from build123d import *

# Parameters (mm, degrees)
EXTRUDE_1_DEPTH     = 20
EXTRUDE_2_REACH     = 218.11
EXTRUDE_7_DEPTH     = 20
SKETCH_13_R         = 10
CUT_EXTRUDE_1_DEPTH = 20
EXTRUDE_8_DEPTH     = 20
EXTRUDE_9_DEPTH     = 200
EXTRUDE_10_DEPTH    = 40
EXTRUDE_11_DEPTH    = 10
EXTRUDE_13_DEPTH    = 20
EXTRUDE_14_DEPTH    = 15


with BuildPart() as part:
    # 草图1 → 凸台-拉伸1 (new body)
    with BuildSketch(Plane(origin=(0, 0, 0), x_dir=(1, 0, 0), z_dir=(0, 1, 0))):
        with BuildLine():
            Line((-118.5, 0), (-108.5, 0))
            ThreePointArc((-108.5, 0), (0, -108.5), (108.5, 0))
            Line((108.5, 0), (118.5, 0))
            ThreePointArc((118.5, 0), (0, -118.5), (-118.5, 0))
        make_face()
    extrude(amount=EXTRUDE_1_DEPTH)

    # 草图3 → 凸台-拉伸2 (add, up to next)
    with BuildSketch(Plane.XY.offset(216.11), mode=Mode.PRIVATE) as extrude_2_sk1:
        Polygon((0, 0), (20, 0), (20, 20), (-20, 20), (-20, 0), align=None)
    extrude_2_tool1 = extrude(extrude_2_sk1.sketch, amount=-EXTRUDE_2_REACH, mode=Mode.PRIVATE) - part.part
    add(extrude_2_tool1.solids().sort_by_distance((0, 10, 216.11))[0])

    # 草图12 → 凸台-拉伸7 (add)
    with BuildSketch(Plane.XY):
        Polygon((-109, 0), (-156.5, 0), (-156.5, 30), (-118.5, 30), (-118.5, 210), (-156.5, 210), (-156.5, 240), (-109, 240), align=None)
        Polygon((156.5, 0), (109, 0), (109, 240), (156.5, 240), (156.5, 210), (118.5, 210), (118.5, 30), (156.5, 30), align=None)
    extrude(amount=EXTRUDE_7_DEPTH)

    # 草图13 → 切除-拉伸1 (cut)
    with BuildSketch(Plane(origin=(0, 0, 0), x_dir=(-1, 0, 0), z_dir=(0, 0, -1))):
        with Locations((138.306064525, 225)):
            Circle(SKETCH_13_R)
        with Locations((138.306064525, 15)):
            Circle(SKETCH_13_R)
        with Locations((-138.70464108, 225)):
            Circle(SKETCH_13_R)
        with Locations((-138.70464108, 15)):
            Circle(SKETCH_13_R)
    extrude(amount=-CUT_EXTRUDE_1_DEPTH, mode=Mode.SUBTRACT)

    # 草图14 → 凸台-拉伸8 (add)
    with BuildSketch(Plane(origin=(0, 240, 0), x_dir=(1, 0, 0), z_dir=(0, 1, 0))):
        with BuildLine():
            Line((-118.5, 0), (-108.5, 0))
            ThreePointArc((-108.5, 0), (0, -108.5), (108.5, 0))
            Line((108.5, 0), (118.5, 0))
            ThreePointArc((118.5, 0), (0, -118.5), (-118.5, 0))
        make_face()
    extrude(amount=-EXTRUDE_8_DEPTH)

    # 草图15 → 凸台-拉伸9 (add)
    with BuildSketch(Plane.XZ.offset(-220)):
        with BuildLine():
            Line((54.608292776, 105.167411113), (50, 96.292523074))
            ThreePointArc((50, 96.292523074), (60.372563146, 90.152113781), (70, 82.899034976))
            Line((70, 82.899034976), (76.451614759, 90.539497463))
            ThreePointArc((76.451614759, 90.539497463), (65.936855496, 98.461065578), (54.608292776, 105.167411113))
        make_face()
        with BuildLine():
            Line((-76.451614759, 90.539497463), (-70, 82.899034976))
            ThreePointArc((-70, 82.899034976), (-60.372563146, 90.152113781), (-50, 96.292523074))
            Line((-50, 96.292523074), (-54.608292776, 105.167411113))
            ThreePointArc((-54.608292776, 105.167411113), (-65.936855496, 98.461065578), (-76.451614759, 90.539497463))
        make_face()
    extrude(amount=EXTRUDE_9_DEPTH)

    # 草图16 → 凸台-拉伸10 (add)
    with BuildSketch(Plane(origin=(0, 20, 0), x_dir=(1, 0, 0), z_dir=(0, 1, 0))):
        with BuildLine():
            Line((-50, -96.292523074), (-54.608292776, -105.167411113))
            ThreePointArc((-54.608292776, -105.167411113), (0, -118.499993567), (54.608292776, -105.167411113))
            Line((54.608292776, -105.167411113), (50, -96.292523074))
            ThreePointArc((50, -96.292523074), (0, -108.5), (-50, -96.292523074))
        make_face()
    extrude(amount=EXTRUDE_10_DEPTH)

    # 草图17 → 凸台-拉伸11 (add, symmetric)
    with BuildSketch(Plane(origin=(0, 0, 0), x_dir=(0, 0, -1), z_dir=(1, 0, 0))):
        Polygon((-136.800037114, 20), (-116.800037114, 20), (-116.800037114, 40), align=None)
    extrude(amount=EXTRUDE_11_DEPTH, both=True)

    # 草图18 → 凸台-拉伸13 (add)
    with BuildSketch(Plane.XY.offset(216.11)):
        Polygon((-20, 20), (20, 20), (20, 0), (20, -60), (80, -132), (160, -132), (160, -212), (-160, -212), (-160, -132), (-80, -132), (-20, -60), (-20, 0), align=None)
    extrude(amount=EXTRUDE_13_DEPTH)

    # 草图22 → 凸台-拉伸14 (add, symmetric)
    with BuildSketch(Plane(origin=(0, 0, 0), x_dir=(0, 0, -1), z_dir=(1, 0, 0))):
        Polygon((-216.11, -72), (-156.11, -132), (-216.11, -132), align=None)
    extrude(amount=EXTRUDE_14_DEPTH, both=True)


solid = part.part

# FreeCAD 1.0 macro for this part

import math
import FreeCAD as App
import Part
import Sketcher
from FreeCAD import Vector
Q = App.Units.Quantity

doc = App.newDocument("Part")
body = doc.addObject("PartDesign::Body", "Body")

sketch1 = body.newObject("Sketcher::SketchObject", "Sketch")
sketch1.AttachmentSupport = (doc.getObject("XZ_Plane"), [""])
sketch1.MapMode = "FlatFace"
sketch1.addGeometry(Part.LineSegment(Vector(-108.5, 0, 0), Vector(-118.5, 0, 0)), False)
sketch1.addGeometry(Part.ArcOfCircle(Part.Circle(Vector(0, 0, 0), Vector(0, 0, 1), 118.5), math.radians(0), math.radians(180)), False)
sketch1.addGeometry(Part.LineSegment(Vector(118.5, 0, 0), Vector(108.5, 0, 0)), False)
sketch1.addGeometry(Part.ArcOfCircle(Part.Circle(Vector(0, 0, 0), Vector(0, 0, 1), 108.5), math.radians(0), math.radians(180)), False)
sketch1.addConstraint(Sketcher.Constraint("Coincident", 0, 2, 1, 2))
sketch1.addConstraint(Sketcher.Constraint("Coincident", 1, 1, 2, 1))
sketch1.addConstraint(Sketcher.Constraint("Coincident", 2, 2, 3, 1))
sketch1.addConstraint(Sketcher.Constraint("Coincident", 3, 2, 0, 1))
sketch1.addConstraint(Sketcher.Constraint("Horizontal", 0))
sketch1.addConstraint(Sketcher.Constraint("Horizontal", 2))
sketch1.addConstraint(Sketcher.Constraint("Coincident", 1, 3, -1, 1))
sketch1.addConstraint(Sketcher.Constraint("Coincident", 3, 3, -1, 1))
sketch1.addConstraint(Sketcher.Constraint("PointOnObject", 0, 2, -1))
sketch1.addConstraint(Sketcher.Constraint("PointOnObject", 1, 1, -1))
sketch1.addConstraint(Sketcher.Constraint("Radius", 1, Q("118.5 mm")))
sketch1.addConstraint(Sketcher.Constraint("Radius", 3, Q("108.5 mm")))
pad1 = body.newObject("PartDesign::Pad", "Pad")
pad1.Profile = sketch1
pad1.Length = 20
pad1.Reversed = True

sketch2 = body.newObject("Sketcher::SketchObject", "Sketch001")
sketch2.AttachmentSupport = (doc.getObject("XY_Plane"), [""])
sketch2.MapMode = "FlatFace"
sketch2.AttachmentOffset = App.Placement(Vector(0, 0, 216.11), App.Rotation())
sketch2.addGeometry(Part.LineSegment(Vector(20, 0, 0), Vector(20, 20, 0)), False)
sketch2.addGeometry(Part.LineSegment(Vector(20, 20, 0), Vector(-20, 20, 0)), False)
sketch2.addGeometry(Part.LineSegment(Vector(-20, 20, 0), Vector(-20, 0, 0)), False)
sketch2.addGeometry(Part.LineSegment(Vector(-20, 0, 0), Vector(20, 0, 0)), False)
sketch2.addConstraint(Sketcher.Constraint("Coincident", 0, 2, 1, 1))
sketch2.addConstraint(Sketcher.Constraint("Coincident", 1, 2, 2, 1))
sketch2.addConstraint(Sketcher.Constraint("Coincident", 2, 2, 3, 1))
sketch2.addConstraint(Sketcher.Constraint("Coincident", 3, 2, 0, 1))
sketch2.addConstraint(Sketcher.Constraint("Vertical", 0))
sketch2.addConstraint(Sketcher.Constraint("Horizontal", 1))
sketch2.addConstraint(Sketcher.Constraint("Vertical", 2))
sketch2.addConstraint(Sketcher.Constraint("Horizontal", 3))
sketch2.addConstraint(Sketcher.Constraint("Symmetric", 2, 2, 3, 2, -1, 1))
sketch2.addConstraint(Sketcher.Constraint("DistanceX", 1, 2, 1, 1, Q("40 mm")))
sketch2.addConstraint(Sketcher.Constraint("DistanceY", 0, 1, 0, 2, Q("20 mm")))
pad2 = body.newObject("PartDesign::Pad", "Pad001")
pad2.Profile = sketch2
pad2.Type = "UpToFirst"
pad2.Reversed = True

sketch3 = body.newObject("Sketcher::SketchObject", "Sketch002")
sketch3.AttachmentSupport = (doc.getObject("XY_Plane"), [""])
sketch3.MapMode = "FlatFace"
sketch3.addGeometry(Part.LineSegment(Vector(-156.5, 0, 0), Vector(-109, 0, 0)), False)
sketch3.addGeometry(Part.LineSegment(Vector(-109, 0, 0), Vector(-109, 240, 0)), False)
sketch3.addGeometry(Part.LineSegment(Vector(-109, 240, 0), Vector(-156.5, 240, 0)), False)
sketch3.addGeometry(Part.LineSegment(Vector(-156.5, 240, 0), Vector(-156.5, 210, 0)), False)
sketch3.addGeometry(Part.LineSegment(Vector(-156.5, 210, 0), Vector(-118.5, 210, 0)), False)
sketch3.addGeometry(Part.LineSegment(Vector(-118.5, 210, 0), Vector(-118.5, 30, 0)), False)
sketch3.addGeometry(Part.LineSegment(Vector(-118.5, 30, 0), Vector(-156.5, 30, 0)), False)
sketch3.addGeometry(Part.LineSegment(Vector(-156.5, 30, 0), Vector(-156.5, 0, 0)), False)
sketch3.addGeometry(Part.LineSegment(Vector(109, 0, 0), Vector(156.5, 0, 0)), False)
sketch3.addGeometry(Part.LineSegment(Vector(156.5, 0, 0), Vector(156.5, 30, 0)), False)
sketch3.addGeometry(Part.LineSegment(Vector(156.5, 30, 0), Vector(118.5, 30, 0)), False)
sketch3.addGeometry(Part.LineSegment(Vector(118.5, 30, 0), Vector(118.5, 210, 0)), False)
sketch3.addGeometry(Part.LineSegment(Vector(118.5, 210, 0), Vector(156.5, 210, 0)), False)
sketch3.addGeometry(Part.LineSegment(Vector(156.5, 210, 0), Vector(156.5, 240, 0)), False)
sketch3.addGeometry(Part.LineSegment(Vector(156.5, 240, 0), Vector(109, 240, 0)), False)
sketch3.addGeometry(Part.LineSegment(Vector(109, 240, 0), Vector(109, 0, 0)), False)
sketch3.addConstraint(Sketcher.Constraint("Coincident", 0, 2, 1, 1))
sketch3.addConstraint(Sketcher.Constraint("Coincident", 1, 2, 2, 1))
sketch3.addConstraint(Sketcher.Constraint("Coincident", 2, 2, 3, 1))
sketch3.addConstraint(Sketcher.Constraint("Coincident", 3, 2, 4, 1))
sketch3.addConstraint(Sketcher.Constraint("Coincident", 4, 2, 5, 1))
sketch3.addConstraint(Sketcher.Constraint("Coincident", 5, 2, 6, 1))
sketch3.addConstraint(Sketcher.Constraint("Coincident", 6, 2, 7, 1))
sketch3.addConstraint(Sketcher.Constraint("Coincident", 7, 2, 0, 1))
sketch3.addConstraint(Sketcher.Constraint("Coincident", 8, 2, 9, 1))
sketch3.addConstraint(Sketcher.Constraint("Coincident", 9, 2, 10, 1))
sketch3.addConstraint(Sketcher.Constraint("Coincident", 10, 2, 11, 1))
sketch3.addConstraint(Sketcher.Constraint("Coincident", 11, 2, 12, 1))
sketch3.addConstraint(Sketcher.Constraint("Coincident", 12, 2, 13, 1))
sketch3.addConstraint(Sketcher.Constraint("Coincident", 13, 2, 14, 1))
sketch3.addConstraint(Sketcher.Constraint("Coincident", 14, 2, 15, 1))
sketch3.addConstraint(Sketcher.Constraint("Coincident", 15, 2, 8, 1))
sketch3.addConstraint(Sketcher.Constraint("Horizontal", 0))
sketch3.addConstraint(Sketcher.Constraint("Vertical", 1))
sketch3.addConstraint(Sketcher.Constraint("Horizontal", 2))
sketch3.addConstraint(Sketcher.Constraint("Vertical", 3))
sketch3.addConstraint(Sketcher.Constraint("Horizontal", 4))
sketch3.addConstraint(Sketcher.Constraint("Vertical", 5))
sketch3.addConstraint(Sketcher.Constraint("Horizontal", 6))
sketch3.addConstraint(Sketcher.Constraint("Vertical", 7))
sketch3.addConstraint(Sketcher.Constraint("Horizontal", 8))
sketch3.addConstraint(Sketcher.Constraint("Vertical", 9))
sketch3.addConstraint(Sketcher.Constraint("Horizontal", 10))
sketch3.addConstraint(Sketcher.Constraint("Vertical", 11))
sketch3.addConstraint(Sketcher.Constraint("Horizontal", 12))
sketch3.addConstraint(Sketcher.Constraint("Vertical", 13))
sketch3.addConstraint(Sketcher.Constraint("Horizontal", 14))
sketch3.addConstraint(Sketcher.Constraint("Vertical", 15))
sketch3.addConstraint(Sketcher.Constraint("Symmetric", 7, 2, 8, 2, -1, 1))
sketch3.addConstraint(Sketcher.Constraint("Symmetric", 5, 2, 10, 2, -2))
sketch3.addConstraint(Sketcher.Constraint("Symmetric", 3, 2, 12, 2, -2))
sketch3.addConstraint(Sketcher.Constraint("Symmetric", 1, 2, 14, 2, -2))
sketch3.addConstraint(Sketcher.Constraint("PointOnObject", 0, 2, -1))
sketch3.addConstraint(Sketcher.Constraint("Vertical", 3, 2, 6, 2))
sketch3.addConstraint(Sketcher.Constraint("Equal", 3, 7))
sketch3.addConstraint(Sketcher.Constraint("DistanceX", 4, 1, 4, 2, Q("38 mm")))
sketch3.addConstraint(Sketcher.Constraint("DistanceY", 1, 1, 1, 2, Q("240 mm")))
sketch3.addConstraint(Sketcher.Constraint("DistanceY", 3, 2, 3, 1, Q("30 mm")))
sketch3.addConstraint(Sketcher.Constraint("DistanceX", 0, 1, 0, 2, Q("47.5 mm")))
sketch3.addConstraint(Sketcher.Constraint("DistanceX", 0, 2, -1, 1, Q("109 mm")))
pad3 = body.newObject("PartDesign::Pad", "Pad002")
pad3.Profile = sketch3
pad3.Length = 20

sketch4 = body.newObject("Sketcher::SketchObject", "Sketch003")
sketch4.AttachmentSupport = (doc.getObject("XY_Plane"), [""])
sketch4.MapMode = "FlatFace"
sketch4.addGeometry(Part.Circle(Vector(-138.306065, 225, 0), Vector(0, 0, 1), 10), False)
sketch4.addGeometry(Part.Circle(Vector(-138.306065, 15, 0), Vector(0, 0, 1), 10), False)
sketch4.addGeometry(Part.Circle(Vector(138.704641, 225, 0), Vector(0, 0, 1), 10), False)
sketch4.addGeometry(Part.Circle(Vector(138.704641, 15, 0), Vector(0, 0, 1), 10), False)
sketch4.addConstraint(Sketcher.Constraint("Equal", 0, 1))
sketch4.addConstraint(Sketcher.Constraint("Equal", 1, 2))
sketch4.addConstraint(Sketcher.Constraint("Equal", 2, 3))
sketch4.addConstraint(Sketcher.Constraint("Horizontal", 0, 3, 2, 3))
sketch4.addConstraint(Sketcher.Constraint("Horizontal", 1, 3, 3, 3))
sketch4.addConstraint(Sketcher.Constraint("Vertical", 0, 3, 1, 3))
sketch4.addConstraint(Sketcher.Constraint("Vertical", 2, 3, 3, 3))
sketch4.addConstraint(Sketcher.Constraint("Diameter", 0, Q("20 mm")))
sketch4.addConstraint(Sketcher.Constraint("DistanceY", -1, 1, 0, 3, Q("225 mm")))
sketch4.addConstraint(Sketcher.Constraint("DistanceY", -1, 1, 1, 3, Q("15 mm")))
sketch4.addConstraint(Sketcher.Constraint("DistanceX", -1, 1, 2, 3, Q("138.704641 mm")))
sketch4.addConstraint(Sketcher.Constraint("DistanceX", 0, 3, -1, 1, Q("138.306065 mm")))
pocket1 = body.newObject("PartDesign::Pocket", "Pocket")
pocket1.Profile = sketch4
pocket1.Length = 20
pocket1.Reversed = True

sketch5 = body.newObject("Sketcher::SketchObject", "Sketch004")
sketch5.AttachmentSupport = (doc.getObject("XZ_Plane"), [""])
sketch5.MapMode = "FlatFace"
sketch5.AttachmentOffset = App.Placement(Vector(0, 0, -240), App.Rotation())
sketch5.addGeometry(Part.LineSegment(Vector(-108.5, 0, 0), Vector(-118.5, 0, 0)), False)
sketch5.addGeometry(Part.ArcOfCircle(Part.Circle(Vector(0, 0, 0), Vector(0, 0, 1), 118.5), math.radians(0), math.radians(180)), False)
sketch5.addGeometry(Part.LineSegment(Vector(118.5, 0, 0), Vector(108.5, 0, 0)), False)
sketch5.addGeometry(Part.ArcOfCircle(Part.Circle(Vector(0, 0, 0), Vector(0, 0, 1), 108.5), math.radians(0), math.radians(180)), False)
sketch5.addConstraint(Sketcher.Constraint("Coincident", 0, 2, 1, 2))
sketch5.addConstraint(Sketcher.Constraint("Coincident", 1, 1, 2, 1))
sketch5.addConstraint(Sketcher.Constraint("Coincident", 2, 2, 3, 1))
sketch5.addConstraint(Sketcher.Constraint("Coincident", 3, 2, 0, 1))
sketch5.addConstraint(Sketcher.Constraint("Horizontal", 0))
sketch5.addConstraint(Sketcher.Constraint("Horizontal", 2))
sketch5.addConstraint(Sketcher.Constraint("Coincident", 1, 3, -1, 1))
sketch5.addConstraint(Sketcher.Constraint("Coincident", 3, 3, -1, 1))
sketch5.addConstraint(Sketcher.Constraint("PointOnObject", 0, 2, -1))
sketch5.addConstraint(Sketcher.Constraint("PointOnObject", 1, 1, -1))
sketch5.addConstraint(Sketcher.Constraint("Radius", 1, Q("118.5 mm")))
sketch5.addConstraint(Sketcher.Constraint("Radius", 3, Q("108.5 mm")))
pad4 = body.newObject("PartDesign::Pad", "Pad003")
pad4.Profile = sketch5
pad4.Length = 20

sketch6 = body.newObject("Sketcher::SketchObject", "Sketch005")
sketch6.AttachmentSupport = (doc.getObject("XZ_Plane"), [""])
sketch6.MapMode = "FlatFace"
sketch6.AttachmentOffset = App.Placement(Vector(0, 0, -220), App.Rotation())
sketch6.addGeometry(Part.LineSegment(Vector(54.608293, 105.167411, 0), Vector(50, 96.292523, 0)), False)
sketch6.addGeometry(Part.ArcOfCircle(Part.Circle(Vector(0, 0, 0), Vector(0, 0, 1), 108.5), math.radians(49.82223), math.radians(62.559354)), False)
sketch6.addGeometry(Part.LineSegment(Vector(70, 82.899035, 0), Vector(76.451615, 90.539497, 0)), False)
sketch6.addGeometry(Part.ArcOfCircle(Part.Circle(Vector(0.000132, 0.000197, 0), Vector(0, 0, 1), 118.499764), math.radians(49.822217), math.radians(62.559368)), False)
sketch6.addGeometry(Part.LineSegment(Vector(-76.451615, 90.539497, 0), Vector(-70, 82.899035, 0)), False)
sketch6.addGeometry(Part.ArcOfCircle(Part.Circle(Vector(0, 0, 0), Vector(0, 0, 1), 108.5), math.radians(117.440646), math.radians(130.17777)), False)
sketch6.addGeometry(Part.LineSegment(Vector(-50, 96.292523, 0), Vector(-54.608293, 105.167411, 0)), False)
sketch6.addGeometry(Part.ArcOfCircle(Part.Circle(Vector(-0.000132, 0.000197, 0), Vector(0, 0, 1), 118.499764), math.radians(117.440632), math.radians(130.177783)), False)
sketch6.addConstraint(Sketcher.Constraint("Coincident", 0, 2, 1, 2))
sketch6.addConstraint(Sketcher.Constraint("Coincident", 1, 1, 2, 1))
sketch6.addConstraint(Sketcher.Constraint("Coincident", 2, 2, 3, 1))
sketch6.addConstraint(Sketcher.Constraint("Coincident", 3, 2, 0, 1))
sketch6.addConstraint(Sketcher.Constraint("Coincident", 4, 2, 5, 2))
sketch6.addConstraint(Sketcher.Constraint("Coincident", 5, 1, 6, 1))
sketch6.addConstraint(Sketcher.Constraint("Coincident", 6, 2, 7, 1))
sketch6.addConstraint(Sketcher.Constraint("Coincident", 7, 2, 4, 1))
sketch6.addConstraint(Sketcher.Constraint("Coincident", 1, 3, -1, 1))
sketch6.addConstraint(Sketcher.Constraint("Coincident", 5, 3, -1, 1))
sketch6.addConstraint(Sketcher.Constraint("Equal", 1, 5))
sketch6.addConstraint(Sketcher.Constraint("Equal", 3, 7))
sketch6.addConstraint(Sketcher.Constraint("Symmetric", 3, 3, 7, 3, -2))
sketch6.addConstraint(Sketcher.Constraint("Horizontal", 1, 1, 4, 2))
sketch6.addConstraint(Sketcher.Constraint("Horizontal", 0, 2, 5, 1))
sketch6.addConstraint(Sketcher.Constraint("Horizontal", 3, 2, 6, 2))
sketch6.addConstraint(Sketcher.Constraint("Horizontal", 2, 2, 7, 2))
sketch6.addConstraint(Sketcher.Constraint("Equal", 0, 2))
sketch6.addConstraint(Sketcher.Constraint("Radius", 1, Q("108.5 mm")))
sketch6.addConstraint(Sketcher.Constraint("Distance", 0, Q("10 mm")))
sketch6.addConstraint(Sketcher.Constraint("DistanceX", -1, 1, 0, 2, Q("50 mm")))
sketch6.addConstraint(Sketcher.Constraint("DistanceX", -1, 1, 1, 1, Q("70 mm")))
sketch6.addConstraint(Sketcher.Constraint("Radius", 3, Q("118.499764 mm")))
sketch6.addConstraint(Sketcher.Constraint("DistanceY", 3, 3, 2, 2, Q("90.5393 mm")))
sketch6.addConstraint(Sketcher.Constraint("DistanceY", -1, 1, 3, 2, Q("105.167411 mm")))
pad5 = body.newObject("PartDesign::Pad", "Pad004")
pad5.Profile = sketch6
pad5.Length = 200

sketch7 = body.newObject("Sketcher::SketchObject", "Sketch006")
sketch7.AttachmentSupport = (doc.getObject("XZ_Plane"), [""])
sketch7.MapMode = "FlatFace"
sketch7.AttachmentOffset = App.Placement(Vector(0, 0, -20), App.Rotation())
sketch7.addGeometry(Part.LineSegment(Vector(-50, 96.292523, 0), Vector(-54.608293, 105.167411, 0)), False)
sketch7.addGeometry(Part.ArcOfCircle(Part.Circle(Vector(0, -0.000057, 0), Vector(0, 0, 1), 118.500051), math.radians(62.559368), math.radians(117.440632)), False)
sketch7.addGeometry(Part.LineSegment(Vector(54.608293, 105.167411, 0), Vector(50, 96.292523, 0)), False)
sketch7.addGeometry(Part.ArcOfCircle(Part.Circle(Vector(0, 0, 0), Vector(0, 0, 1), 108.5), math.radians(62.559354), math.radians(117.440646)), False)
sketch7.addConstraint(Sketcher.Constraint("Coincident", 0, 2, 1, 2))
sketch7.addConstraint(Sketcher.Constraint("Coincident", 1, 1, 2, 1))
sketch7.addConstraint(Sketcher.Constraint("Coincident", 2, 2, 3, 1))
sketch7.addConstraint(Sketcher.Constraint("Coincident", 3, 2, 0, 1))
sketch7.addConstraint(Sketcher.Constraint("Coincident", 3, 3, -1, 1))
sketch7.addConstraint(Sketcher.Constraint("Symmetric", 0, 2, 1, 1, -2))
sketch7.addConstraint(Sketcher.Constraint("Horizontal", 2, 2, 3, 2))
sketch7.addConstraint(Sketcher.Constraint("Radius", 3, Q("108.5 mm")))
sketch7.addConstraint(Sketcher.Constraint("Distance", 0, Q("10 mm")))
sketch7.addConstraint(Sketcher.Constraint("DistanceX", -1, 1, 2, 2, Q("50 mm")))
sketch7.addConstraint(Sketcher.Constraint("Radius", 1, Q("118.500051 mm")))
sketch7.addConstraint(Sketcher.Constraint("DistanceY", -1, 1, 0, 2, Q("105.167411 mm")))
pad6 = body.newObject("PartDesign::Pad", "Pad005")
pad6.Profile = sketch7
pad6.Length = 40
pad6.Reversed = True

sketch8 = body.newObject("Sketcher::SketchObject", "Sketch007")
sketch8.AttachmentSupport = (doc.getObject("YZ_Plane"), [""])
sketch8.MapMode = "FlatFace"
sketch8.addGeometry(Part.LineSegment(Vector(20, 136.800037, 0), Vector(20, 116.800037, 0)), False)
sketch8.addGeometry(Part.LineSegment(Vector(20, 116.800037, 0), Vector(40, 116.800037, 0)), False)
sketch8.addGeometry(Part.LineSegment(Vector(40, 116.800037, 0), Vector(20, 136.800037, 0)), False)
sketch8.addConstraint(Sketcher.Constraint("Coincident", 0, 2, 1, 1))
sketch8.addConstraint(Sketcher.Constraint("Coincident", 1, 2, 2, 1))
sketch8.addConstraint(Sketcher.Constraint("Coincident", 2, 2, 0, 1))
sketch8.addConstraint(Sketcher.Constraint("Vertical", 0))
sketch8.addConstraint(Sketcher.Constraint("Horizontal", 1))
sketch8.addConstraint(Sketcher.Constraint("Equal", 1, 0))
sketch8.addConstraint(Sketcher.Constraint("DistanceX", 1, 1, 1, 2, Q("20 mm")))
sketch8.addConstraint(Sketcher.Constraint("DistanceX", -1, 1, 0, 2, Q("20 mm")))
sketch8.addConstraint(Sketcher.Constraint("DistanceY", -1, 1, 0, 2, Q("116.800037 mm")))
pad7 = body.newObject("PartDesign::Pad", "Pad006")
pad7.Profile = sketch8
pad7.Length = 20
pad7.Midplane = True

sketch9 = body.newObject("Sketcher::SketchObject", "Sketch008")
sketch9.AttachmentSupport = (doc.getObject("XY_Plane"), [""])
sketch9.MapMode = "FlatFace"
sketch9.AttachmentOffset = App.Placement(Vector(0, 0, 216.11), App.Rotation())
sketch9.addGeometry(Part.LineSegment(Vector(20, 20, 0), Vector(-20, 20, 0)), False)
sketch9.addGeometry(Part.LineSegment(Vector(-20, 20, 0), Vector(-20, -60, 0)), False)
sketch9.addGeometry(Part.LineSegment(Vector(-20, -60, 0), Vector(-80, -132, 0)), False)
sketch9.addGeometry(Part.LineSegment(Vector(-80, -132, 0), Vector(-160, -132, 0)), False)
sketch9.addGeometry(Part.LineSegment(Vector(-160, -132, 0), Vector(-160, -212, 0)), False)
sketch9.addGeometry(Part.LineSegment(Vector(-160, -212, 0), Vector(160, -212, 0)), False)
sketch9.addGeometry(Part.LineSegment(Vector(160, -212, 0), Vector(160, -132, 0)), False)
sketch9.addGeometry(Part.LineSegment(Vector(160, -132, 0), Vector(80, -132, 0)), False)
sketch9.addGeometry(Part.LineSegment(Vector(80, -132, 0), Vector(20, -60, 0)), False)
sketch9.addGeometry(Part.LineSegment(Vector(20, -60, 0), Vector(20, 20, 0)), False)
sketch9.addConstraint(Sketcher.Constraint("Coincident", 0, 2, 1, 1))
sketch9.addConstraint(Sketcher.Constraint("Coincident", 1, 2, 2, 1))
sketch9.addConstraint(Sketcher.Constraint("Coincident", 2, 2, 3, 1))
sketch9.addConstraint(Sketcher.Constraint("Coincident", 3, 2, 4, 1))
sketch9.addConstraint(Sketcher.Constraint("Coincident", 4, 2, 5, 1))
sketch9.addConstraint(Sketcher.Constraint("Coincident", 5, 2, 6, 1))
sketch9.addConstraint(Sketcher.Constraint("Coincident", 6, 2, 7, 1))
sketch9.addConstraint(Sketcher.Constraint("Coincident", 7, 2, 8, 1))
sketch9.addConstraint(Sketcher.Constraint("Coincident", 8, 2, 9, 1))
sketch9.addConstraint(Sketcher.Constraint("Coincident", 9, 2, 0, 1))
sketch9.addConstraint(Sketcher.Constraint("Horizontal", 0))
sketch9.addConstraint(Sketcher.Constraint("Vertical", 1))
sketch9.addConstraint(Sketcher.Constraint("Horizontal", 3))
sketch9.addConstraint(Sketcher.Constraint("Vertical", 4))
sketch9.addConstraint(Sketcher.Constraint("Horizontal", 5))
sketch9.addConstraint(Sketcher.Constraint("Vertical", 6))
sketch9.addConstraint(Sketcher.Constraint("Horizontal", 7))
sketch9.addConstraint(Sketcher.Constraint("Vertical", 9))
sketch9.addConstraint(Sketcher.Constraint("Symmetric", 3, 2, 6, 2, -2))
sketch9.addConstraint(Sketcher.Constraint("Symmetric", 1, 2, 8, 2, -2))
sketch9.addConstraint(Sketcher.Constraint("Equal", 3, 7))
sketch9.addConstraint(Sketcher.Constraint("Equal", 7, 1))
sketch9.addConstraint(Sketcher.Constraint("Equal", 1, 4))
sketch9.addConstraint(Sketcher.Constraint("DistanceX", 0, 2, 0, 1, Q("40 mm")))
sketch9.addConstraint(Sketcher.Constraint("DistanceX", 3, 2, 3, 1, Q("80 mm")))
sketch9.addConstraint(Sketcher.Constraint("DistanceX", 5, 1, 5, 2, Q("320 mm")))
sketch9.addConstraint(Sketcher.Constraint("DistanceY", -1, 1, 0, 2, Q("20 mm")))
sketch9.addConstraint(Sketcher.Constraint("DistanceY", 2, 2, -1, 1, Q("132 mm")))
pad8 = body.newObject("PartDesign::Pad", "Pad007")
pad8.Profile = sketch9
pad8.Length = 20

sketch10 = body.newObject("Sketcher::SketchObject", "Sketch009")
sketch10.AttachmentSupport = (doc.getObject("YZ_Plane"), [""])
sketch10.MapMode = "FlatFace"
sketch10.addGeometry(Part.LineSegment(Vector(-132, 156.11, 0), Vector(-72, 216.11, 0)), False)
sketch10.addGeometry(Part.LineSegment(Vector(-72, 216.11, 0), Vector(-132, 216.11, 0)), False)
sketch10.addGeometry(Part.LineSegment(Vector(-132, 216.11, 0), Vector(-132, 156.11, 0)), False)
sketch10.addConstraint(Sketcher.Constraint("Coincident", 0, 2, 1, 1))
sketch10.addConstraint(Sketcher.Constraint("Coincident", 1, 2, 2, 1))
sketch10.addConstraint(Sketcher.Constraint("Coincident", 2, 2, 0, 1))
sketch10.addConstraint(Sketcher.Constraint("Horizontal", 1))
sketch10.addConstraint(Sketcher.Constraint("Vertical", 2))
sketch10.addConstraint(Sketcher.Constraint("Equal", 1, 2))
sketch10.addConstraint(Sketcher.Constraint("DistanceX", 1, 2, 1, 1, Q("60 mm")))
sketch10.addConstraint(Sketcher.Constraint("DistanceX", 0, 2, -1, 1, Q("72 mm")))
sketch10.addConstraint(Sketcher.Constraint("DistanceY", -1, 1, 0, 2, Q("216.11 mm")))
pad9 = body.newObject("PartDesign::Pad", "Pad008")
pad9.Profile = sketch10
pad9.Length = 30
pad9.Midplane = True

doc.recompute()
